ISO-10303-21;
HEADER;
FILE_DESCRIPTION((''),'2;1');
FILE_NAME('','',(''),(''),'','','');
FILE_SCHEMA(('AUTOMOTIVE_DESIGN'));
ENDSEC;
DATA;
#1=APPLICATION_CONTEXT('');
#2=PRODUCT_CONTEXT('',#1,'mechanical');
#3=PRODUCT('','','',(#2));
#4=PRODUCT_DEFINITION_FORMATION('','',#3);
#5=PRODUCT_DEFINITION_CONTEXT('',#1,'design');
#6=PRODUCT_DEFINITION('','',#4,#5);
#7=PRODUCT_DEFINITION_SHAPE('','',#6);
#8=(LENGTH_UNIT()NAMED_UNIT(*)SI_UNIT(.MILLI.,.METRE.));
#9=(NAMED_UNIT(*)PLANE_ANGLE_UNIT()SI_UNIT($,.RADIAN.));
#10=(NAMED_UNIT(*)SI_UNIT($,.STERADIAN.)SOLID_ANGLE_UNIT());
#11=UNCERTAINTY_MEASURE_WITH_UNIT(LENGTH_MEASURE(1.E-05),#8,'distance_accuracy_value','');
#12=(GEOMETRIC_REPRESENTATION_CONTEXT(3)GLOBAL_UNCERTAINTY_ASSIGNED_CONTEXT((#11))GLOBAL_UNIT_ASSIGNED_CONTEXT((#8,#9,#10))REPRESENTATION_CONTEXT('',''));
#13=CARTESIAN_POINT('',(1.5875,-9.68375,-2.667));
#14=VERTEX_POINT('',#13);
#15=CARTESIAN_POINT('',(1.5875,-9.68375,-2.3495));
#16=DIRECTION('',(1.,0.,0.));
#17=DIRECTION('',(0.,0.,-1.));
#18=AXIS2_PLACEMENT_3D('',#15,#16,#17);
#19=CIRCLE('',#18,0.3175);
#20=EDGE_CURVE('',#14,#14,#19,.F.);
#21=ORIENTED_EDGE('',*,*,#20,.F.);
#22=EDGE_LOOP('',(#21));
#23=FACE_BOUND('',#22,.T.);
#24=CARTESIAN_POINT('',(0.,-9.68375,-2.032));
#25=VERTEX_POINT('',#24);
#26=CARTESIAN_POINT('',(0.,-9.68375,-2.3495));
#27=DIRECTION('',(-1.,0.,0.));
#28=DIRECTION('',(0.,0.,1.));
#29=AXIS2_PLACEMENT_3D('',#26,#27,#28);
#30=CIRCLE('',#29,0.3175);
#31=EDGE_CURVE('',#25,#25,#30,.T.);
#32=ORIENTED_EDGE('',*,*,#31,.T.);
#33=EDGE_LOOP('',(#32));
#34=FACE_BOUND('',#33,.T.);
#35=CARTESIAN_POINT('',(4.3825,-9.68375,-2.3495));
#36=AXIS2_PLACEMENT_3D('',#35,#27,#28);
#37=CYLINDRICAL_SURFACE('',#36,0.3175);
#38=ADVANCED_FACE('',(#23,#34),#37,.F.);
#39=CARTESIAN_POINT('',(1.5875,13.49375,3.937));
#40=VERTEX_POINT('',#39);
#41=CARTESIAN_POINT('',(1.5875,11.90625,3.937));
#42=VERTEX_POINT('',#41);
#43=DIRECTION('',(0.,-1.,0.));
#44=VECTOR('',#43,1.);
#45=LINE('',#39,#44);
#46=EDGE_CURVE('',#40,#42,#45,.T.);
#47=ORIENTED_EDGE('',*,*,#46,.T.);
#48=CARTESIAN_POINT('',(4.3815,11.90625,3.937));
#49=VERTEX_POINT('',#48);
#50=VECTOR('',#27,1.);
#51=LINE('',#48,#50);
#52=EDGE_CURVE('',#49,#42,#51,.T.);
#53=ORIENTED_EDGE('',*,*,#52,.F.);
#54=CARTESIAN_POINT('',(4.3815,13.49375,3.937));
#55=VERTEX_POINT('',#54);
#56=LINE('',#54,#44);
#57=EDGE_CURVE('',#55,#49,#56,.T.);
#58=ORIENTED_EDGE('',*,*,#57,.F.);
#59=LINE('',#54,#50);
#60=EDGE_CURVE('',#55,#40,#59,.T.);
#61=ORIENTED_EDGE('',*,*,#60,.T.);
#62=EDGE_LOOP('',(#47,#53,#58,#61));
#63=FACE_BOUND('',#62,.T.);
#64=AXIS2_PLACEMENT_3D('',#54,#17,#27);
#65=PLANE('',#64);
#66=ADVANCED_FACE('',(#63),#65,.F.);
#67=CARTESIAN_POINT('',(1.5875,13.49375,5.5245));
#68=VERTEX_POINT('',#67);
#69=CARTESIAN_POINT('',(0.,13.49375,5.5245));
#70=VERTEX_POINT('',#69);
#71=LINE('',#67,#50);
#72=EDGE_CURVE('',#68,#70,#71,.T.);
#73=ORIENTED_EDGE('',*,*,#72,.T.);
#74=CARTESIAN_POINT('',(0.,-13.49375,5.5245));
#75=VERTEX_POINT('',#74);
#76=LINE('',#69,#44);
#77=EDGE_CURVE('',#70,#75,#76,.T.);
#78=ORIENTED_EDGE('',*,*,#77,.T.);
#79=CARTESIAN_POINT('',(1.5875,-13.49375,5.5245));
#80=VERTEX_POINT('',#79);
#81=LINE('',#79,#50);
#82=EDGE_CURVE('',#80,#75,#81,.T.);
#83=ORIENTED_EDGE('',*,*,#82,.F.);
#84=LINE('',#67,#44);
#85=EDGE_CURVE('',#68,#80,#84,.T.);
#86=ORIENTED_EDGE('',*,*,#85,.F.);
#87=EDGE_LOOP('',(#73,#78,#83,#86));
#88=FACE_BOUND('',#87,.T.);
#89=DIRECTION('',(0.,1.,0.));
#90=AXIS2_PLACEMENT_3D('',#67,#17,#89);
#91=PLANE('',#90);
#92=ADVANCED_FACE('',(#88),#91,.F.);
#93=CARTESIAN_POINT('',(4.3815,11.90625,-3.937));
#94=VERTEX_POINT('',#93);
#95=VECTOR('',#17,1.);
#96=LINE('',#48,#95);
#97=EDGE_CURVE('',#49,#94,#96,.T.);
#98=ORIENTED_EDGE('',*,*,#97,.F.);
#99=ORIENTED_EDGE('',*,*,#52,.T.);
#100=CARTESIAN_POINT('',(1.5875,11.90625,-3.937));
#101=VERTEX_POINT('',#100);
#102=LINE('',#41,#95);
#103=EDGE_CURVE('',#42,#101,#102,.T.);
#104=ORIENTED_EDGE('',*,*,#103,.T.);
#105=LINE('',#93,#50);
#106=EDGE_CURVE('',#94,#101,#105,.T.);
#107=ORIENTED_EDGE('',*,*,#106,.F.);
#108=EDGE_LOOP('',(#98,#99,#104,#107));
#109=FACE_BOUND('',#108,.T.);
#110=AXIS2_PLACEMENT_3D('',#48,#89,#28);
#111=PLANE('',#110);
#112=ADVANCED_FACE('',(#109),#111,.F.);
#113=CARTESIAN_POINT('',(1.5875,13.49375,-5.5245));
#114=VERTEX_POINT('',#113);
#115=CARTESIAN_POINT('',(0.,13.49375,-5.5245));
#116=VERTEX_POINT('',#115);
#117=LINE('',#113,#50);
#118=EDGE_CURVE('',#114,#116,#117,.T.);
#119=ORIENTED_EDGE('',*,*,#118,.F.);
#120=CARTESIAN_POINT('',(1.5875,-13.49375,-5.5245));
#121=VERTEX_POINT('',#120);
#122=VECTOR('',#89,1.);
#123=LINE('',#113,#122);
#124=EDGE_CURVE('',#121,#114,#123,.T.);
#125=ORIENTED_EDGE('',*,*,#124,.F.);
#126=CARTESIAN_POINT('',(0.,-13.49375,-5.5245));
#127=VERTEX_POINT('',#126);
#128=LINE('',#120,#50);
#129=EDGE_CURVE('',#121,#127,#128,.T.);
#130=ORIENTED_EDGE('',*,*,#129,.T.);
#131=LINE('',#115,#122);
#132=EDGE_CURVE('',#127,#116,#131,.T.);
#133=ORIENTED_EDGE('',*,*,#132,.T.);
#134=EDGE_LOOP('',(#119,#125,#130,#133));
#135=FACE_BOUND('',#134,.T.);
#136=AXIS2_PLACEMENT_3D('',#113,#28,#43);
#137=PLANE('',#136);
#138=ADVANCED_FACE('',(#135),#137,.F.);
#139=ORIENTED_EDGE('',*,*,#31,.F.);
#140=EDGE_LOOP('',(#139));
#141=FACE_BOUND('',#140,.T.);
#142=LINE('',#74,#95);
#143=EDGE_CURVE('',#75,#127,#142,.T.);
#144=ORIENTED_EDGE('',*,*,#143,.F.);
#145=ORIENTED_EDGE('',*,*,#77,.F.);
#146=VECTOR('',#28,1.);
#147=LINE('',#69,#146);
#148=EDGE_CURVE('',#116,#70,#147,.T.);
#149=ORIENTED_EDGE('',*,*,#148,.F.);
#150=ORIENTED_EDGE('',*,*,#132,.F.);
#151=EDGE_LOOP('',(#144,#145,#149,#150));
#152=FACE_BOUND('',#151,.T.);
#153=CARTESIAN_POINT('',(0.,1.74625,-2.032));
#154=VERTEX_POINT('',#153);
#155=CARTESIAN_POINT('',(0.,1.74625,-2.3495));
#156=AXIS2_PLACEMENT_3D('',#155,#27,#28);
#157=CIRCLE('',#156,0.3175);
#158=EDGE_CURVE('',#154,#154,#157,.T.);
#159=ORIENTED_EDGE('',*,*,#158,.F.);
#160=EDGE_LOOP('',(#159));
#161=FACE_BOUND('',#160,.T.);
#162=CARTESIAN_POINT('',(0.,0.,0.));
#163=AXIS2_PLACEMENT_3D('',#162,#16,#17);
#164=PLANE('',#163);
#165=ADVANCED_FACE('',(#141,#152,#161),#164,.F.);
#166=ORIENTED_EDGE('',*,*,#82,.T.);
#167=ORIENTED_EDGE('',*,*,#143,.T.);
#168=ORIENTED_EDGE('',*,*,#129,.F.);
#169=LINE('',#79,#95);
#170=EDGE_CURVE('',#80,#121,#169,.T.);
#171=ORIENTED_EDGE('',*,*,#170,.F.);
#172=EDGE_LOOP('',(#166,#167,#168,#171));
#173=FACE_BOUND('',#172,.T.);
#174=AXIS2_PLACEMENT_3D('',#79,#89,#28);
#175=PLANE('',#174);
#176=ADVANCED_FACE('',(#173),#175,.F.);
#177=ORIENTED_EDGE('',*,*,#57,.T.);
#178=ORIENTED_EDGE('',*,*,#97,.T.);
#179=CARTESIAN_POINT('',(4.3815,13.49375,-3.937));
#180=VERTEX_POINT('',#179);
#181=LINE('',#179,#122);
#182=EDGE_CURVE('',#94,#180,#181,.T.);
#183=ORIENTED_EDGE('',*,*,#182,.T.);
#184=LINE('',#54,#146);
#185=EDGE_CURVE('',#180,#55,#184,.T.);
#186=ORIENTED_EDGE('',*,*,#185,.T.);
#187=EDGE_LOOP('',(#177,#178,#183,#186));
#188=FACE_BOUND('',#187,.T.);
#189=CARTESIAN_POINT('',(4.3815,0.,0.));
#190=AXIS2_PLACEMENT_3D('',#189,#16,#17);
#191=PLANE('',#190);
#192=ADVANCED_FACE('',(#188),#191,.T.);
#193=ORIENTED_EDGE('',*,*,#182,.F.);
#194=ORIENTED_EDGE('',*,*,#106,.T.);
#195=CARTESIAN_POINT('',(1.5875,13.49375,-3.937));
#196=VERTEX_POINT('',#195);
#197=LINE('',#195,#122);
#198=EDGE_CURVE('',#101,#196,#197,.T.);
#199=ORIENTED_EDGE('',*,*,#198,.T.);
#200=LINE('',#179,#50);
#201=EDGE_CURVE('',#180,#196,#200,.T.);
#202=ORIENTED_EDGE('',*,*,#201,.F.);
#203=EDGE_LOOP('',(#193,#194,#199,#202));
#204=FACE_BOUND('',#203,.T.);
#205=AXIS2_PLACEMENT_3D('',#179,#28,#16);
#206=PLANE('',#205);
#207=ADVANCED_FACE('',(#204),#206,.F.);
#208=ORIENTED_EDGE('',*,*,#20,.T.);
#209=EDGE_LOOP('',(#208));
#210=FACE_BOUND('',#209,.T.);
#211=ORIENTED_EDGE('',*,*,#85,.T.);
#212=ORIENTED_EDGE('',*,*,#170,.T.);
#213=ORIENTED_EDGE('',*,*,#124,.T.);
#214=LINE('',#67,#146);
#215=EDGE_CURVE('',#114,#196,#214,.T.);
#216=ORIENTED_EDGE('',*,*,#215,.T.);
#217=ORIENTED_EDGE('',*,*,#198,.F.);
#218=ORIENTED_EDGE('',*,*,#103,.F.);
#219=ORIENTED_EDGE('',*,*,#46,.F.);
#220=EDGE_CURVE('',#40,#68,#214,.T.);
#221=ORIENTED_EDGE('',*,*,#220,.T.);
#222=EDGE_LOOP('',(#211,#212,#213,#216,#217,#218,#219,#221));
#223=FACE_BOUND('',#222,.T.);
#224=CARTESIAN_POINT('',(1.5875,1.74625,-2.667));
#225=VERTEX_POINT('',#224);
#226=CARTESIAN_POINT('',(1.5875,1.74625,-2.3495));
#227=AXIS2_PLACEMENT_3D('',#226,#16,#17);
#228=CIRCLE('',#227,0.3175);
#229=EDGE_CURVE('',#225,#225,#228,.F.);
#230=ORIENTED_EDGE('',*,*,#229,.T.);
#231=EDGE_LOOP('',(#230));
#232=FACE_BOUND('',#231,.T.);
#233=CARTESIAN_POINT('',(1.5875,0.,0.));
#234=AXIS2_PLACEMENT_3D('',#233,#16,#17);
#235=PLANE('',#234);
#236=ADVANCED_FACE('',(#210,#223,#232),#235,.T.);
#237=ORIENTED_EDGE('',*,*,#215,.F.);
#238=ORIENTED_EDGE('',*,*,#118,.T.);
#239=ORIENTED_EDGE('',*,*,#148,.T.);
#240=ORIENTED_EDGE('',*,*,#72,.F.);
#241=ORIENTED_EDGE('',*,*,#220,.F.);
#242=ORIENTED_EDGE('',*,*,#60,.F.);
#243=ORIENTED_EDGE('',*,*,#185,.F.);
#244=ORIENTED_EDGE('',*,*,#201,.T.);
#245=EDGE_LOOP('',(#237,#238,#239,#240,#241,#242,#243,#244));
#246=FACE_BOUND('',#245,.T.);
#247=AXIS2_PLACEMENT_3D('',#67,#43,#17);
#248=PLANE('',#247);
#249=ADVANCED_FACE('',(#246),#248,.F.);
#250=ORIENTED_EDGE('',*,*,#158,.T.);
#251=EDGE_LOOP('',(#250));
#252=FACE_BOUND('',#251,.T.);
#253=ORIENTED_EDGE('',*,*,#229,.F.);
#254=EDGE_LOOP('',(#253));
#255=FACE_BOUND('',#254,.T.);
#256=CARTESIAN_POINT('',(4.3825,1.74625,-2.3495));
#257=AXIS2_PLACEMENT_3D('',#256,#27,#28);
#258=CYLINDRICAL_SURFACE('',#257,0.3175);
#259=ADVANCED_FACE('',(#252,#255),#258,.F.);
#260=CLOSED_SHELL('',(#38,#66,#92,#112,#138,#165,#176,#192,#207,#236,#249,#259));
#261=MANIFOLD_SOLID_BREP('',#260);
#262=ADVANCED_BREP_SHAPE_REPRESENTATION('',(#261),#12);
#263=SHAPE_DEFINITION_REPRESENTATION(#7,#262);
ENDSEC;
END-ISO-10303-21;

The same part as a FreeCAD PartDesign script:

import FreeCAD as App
import Part
import Sketcher

V = App.Vector
Q = App.Units.Quantity

doc = App.newDocument("Part")
body = doc.addObject("PartDesign::Body", "Body")

# Sketch on YZ plane
sketch1 = body.newObject("Sketcher::SketchObject", "Sketch")
sketch1.AttachmentSupport = (doc.getObject("YZ_Plane"), [""])
sketch1.MapMode = "FlatFace"
sketch1.addGeometry([
    Part.LineSegment(V(13.49375, 5.5245, 0), V(-13.49375, 5.5245, 0)),
    Part.LineSegment(V(-13.49375, 5.5245, 0), V(-13.49375, -5.5245, 0)),
    Part.LineSegment(V(-13.49375, -5.5245, 0), V(13.49375, -5.5245, 0)),
    Part.LineSegment(V(13.49375, -5.5245, 0), V(13.49375, 5.5245, 0)),
], False)
sketch1.addConstraint([
    Sketcher.Constraint("Coincident", 0, 2, 1, 1),
    Sketcher.Constraint("Coincident", 1, 2, 2, 1),
    Sketcher.Constraint("Coincident", 2, 2, 3, 1),
    Sketcher.Constraint("Coincident", 3, 2, 0, 1),
    Sketcher.Constraint("Horizontal", 0),
    Sketcher.Constraint("Vertical", 1),
    Sketcher.Constraint("Horizontal", 2),
    Sketcher.Constraint("Vertical", 3),
    Sketcher.Constraint("Symmetric", 0, 2, 2, 2, -1, 1),
    Sketcher.Constraint("DistanceX", 0, 2, 0, 1, Q("1.0625 in")),
    Sketcher.Constraint("DistanceY", 1, 2, 1, 1, Q("0.435 in")),
])
pad1 = body.newObject("PartDesign::Pad", "Pad")
pad1.Profile = sketch1
pad1.Length = Q("0.0625 in")

# Sketch on YZ plane
sketch2 = body.newObject("Sketcher::SketchObject", "Sketch001")
sketch2.AttachmentSupport = (doc.getObject("YZ_Plane"), [""])
sketch2.MapMode = "FlatFace"
sketch2.AttachmentOffset = App.Placement(V(0, 0, 0.0625 * 25.4), App.Rotation())
sketch2.addGeometry([
    Part.LineSegment(V(13.49375, 3.937, 0), V(11.90625, 3.937, 0)),
    Part.LineSegment(V(11.90625, 3.937, 0), V(11.90625, -3.937, 0)),
    Part.LineSegment(V(11.90625, -3.937, 0), V(13.49375, -3.937, 0)),
    Part.LineSegment(V(13.49375, -3.937, 0), V(13.49375, 3.937, 0)),
], False)
sketch2.addConstraint([
    Sketcher.Constraint("Coincident", 0, 2, 1, 1),
    Sketcher.Constraint("Coincident", 1, 2, 2, 1),
    Sketcher.Constraint("Coincident", 2, 2, 3, 1),
    Sketcher.Constraint("Coincident", 3, 2, 0, 1),
    Sketcher.Constraint("Horizontal", 0),
    Sketcher.Constraint("Vertical", 1),
    Sketcher.Constraint("Horizontal", 2),
    Sketcher.Constraint("Vertical", 3),
    Sketcher.Constraint("DistanceY", 1, 2, 1, 1, Q("0.31 in")),
    Sketcher.Constraint("DistanceX", 0, 2, 0, 1, Q("0.0625 in")),
    Sketcher.Constraint("DistanceX", -1, 1, 0, 2, Q("0.46875 in")),
    Sketcher.Constraint("DistanceY", -1, 1, 0, 2, Q("0.155 in")),
])
pad2 = body.newObject("PartDesign::Pad", "Pad001")
pad2.Profile = sketch2
pad2.Length = Q("0.11 in")

# Sketch on YZ plane
sketch3 = body.newObject("Sketcher::SketchObject", "Sketch002")
sketch3.AttachmentSupport = (doc.getObject("YZ_Plane"), [""])
sketch3.MapMode = "FlatFace"
sketch3.addGeometry(Part.Circle(V(1.74625, -2.3495, 0), V(0, 0, 1), 0.3175), False)
sketch3.addConstraint([
    Sketcher.Constraint("Diameter", 0, Q("0.025 in")),
    Sketcher.Constraint("DistanceY", 0, 3, -1, 1, Q("0.0925 in")),
    Sketcher.Constraint("DistanceX", -1, 1, 0, 3, 1.74625),
])
pocket1 = body.newObject("PartDesign::Pocket", "Pocket")
pocket1.Profile = sketch3
pocket1.Type = "UpToFirst"
pocket1.Reversed = True

# Sketch on YZ plane
sketch4 = body.newObject("Sketcher::SketchObject", "Sketch003")
sketch4.AttachmentSupport = (doc.getObject("YZ_Plane"), [""])
sketch4.MapMode = "FlatFace"
sketch4.addGeometry(Part.Circle(V(-9.68375, -2.3495, 0), V(0, 0, 1), 0.3175), False)
sketch4.addConstraint([
    Sketcher.Constraint("Diameter", 0, Q("0.025 in")),
    Sketcher.Constraint("DistanceY", 0, 3, -1, 1, Q("0.0925 in")),
    Sketcher.Constraint("DistanceX", 0, 3, -1, 1, 9.68375),
])
pocket2 = body.newObject("PartDesign::Pocket", "Pocket001")
pocket2.Profile = sketch4
pocket2.Type = "UpToFirst"
pocket2.Reversed = True

doc.recompute()
